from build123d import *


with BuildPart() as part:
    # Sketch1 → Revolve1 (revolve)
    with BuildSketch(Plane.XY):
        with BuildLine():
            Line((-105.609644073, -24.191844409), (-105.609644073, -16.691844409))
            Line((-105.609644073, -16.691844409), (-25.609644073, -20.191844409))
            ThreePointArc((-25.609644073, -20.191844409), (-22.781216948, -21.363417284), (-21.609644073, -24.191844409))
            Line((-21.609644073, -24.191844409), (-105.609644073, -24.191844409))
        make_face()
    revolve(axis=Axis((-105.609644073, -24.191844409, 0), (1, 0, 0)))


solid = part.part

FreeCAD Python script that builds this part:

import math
import FreeCAD as App
import Part
import Sketcher
from FreeCAD import Vector
Q = App.Units.Quantity

doc = App.newDocument("Part")
body = doc.addObject("PartDesign::Body", "Body")

# Sketch on XY plane
sketch1 = doc.addObject("Sketcher::SketchObject", "Sketch")
body.addObject(sketch1)
sketch1.AttachmentSupport = (doc.XY_Plane, [""])
sketch1.MapMode = "FlatFace"
sketch1.addGeometry(Part.LineSegment(Vector(-105.6, -16.7, 0), Vector(-105.6, -24.2, 0)), False)
sketch1.addGeometry(Part.LineSegment(Vector(-105.6, -24.2, 0), Vector(-21.6, -24.2, 0)), False)
sketch1.addGeometry(Part.ArcOfCircle(Part.Circle(Vector(-25.6, -24.2, 0), Vector(0, 0, 1), 4), math.radians(0), math.radians(90)), False)
sketch1.addGeometry(Part.LineSegment(Vector(-25.6, -20.2, 0), Vector(-105.6, -16.7, 0)), False)
sketch1.addGeometry(Part.LineSegment(Vector(-105.6, -24.2, 0), Vector(-21.6, -24.2, 0)), True)  # axis
sketch1.addConstraint(Sketcher.Constraint("Coincident", 0, 2, 1, 1))
sketch1.addConstraint(Sketcher.Constraint("Coincident", 1, 2, 2, 1))
sketch1.addConstraint(Sketcher.Constraint("Coincident", 2, 2, 3, 1))
sketch1.addConstraint(Sketcher.Constraint("Coincident", 3, 2, 0, 1))
sketch1.addConstraint(Sketcher.Constraint("Vertical", 0))
sketch1.addConstraint(Sketcher.Constraint("Horizontal", 1))
sketch1.addConstraint(Sketcher.Constraint("Horizontal", 4))
sketch1.addConstraint(Sketcher.Constraint("Coincident", 4, 1, 0, 2))
sketch1.addConstraint(Sketcher.Constraint("Horizontal", 2, 3, 0, 2))
sketch1.addConstraint(Sketcher.Constraint("Equal", 1, 4))
sketch1.addConstraint(Sketcher.Constraint("Radius", 2, Q("4 mm")))
sketch1.addConstraint(Sketcher.Constraint("DistanceX", 1, 1, 1, 2, Q("84 mm")))
sketch1.addConstraint(Sketcher.Constraint("DistanceY", 0, 2, 0, 1, Q("7.5 mm")))
sketch1.addConstraint(Sketcher.Constraint("DistanceX", 2, 2, 1, 2, Q("4 mm")))
sketch1.addConstraint(Sketcher.Constraint("DistanceX", 2, 3, -1, 1, Q("25.609644 mm")))
sketch1.addConstraint(Sketcher.Constraint("DistanceY", 2, 3, -1, 1, Q("24.191844 mm")))
revolution = doc.addObject("PartDesign::Revolution", "Revolution")
body.addObject(revolution)
revolution.Profile = sketch1
revolution.ReferenceAxis = (sketch1, ["Axis0"])
revolution.Angle = 360

doc.recompute()
